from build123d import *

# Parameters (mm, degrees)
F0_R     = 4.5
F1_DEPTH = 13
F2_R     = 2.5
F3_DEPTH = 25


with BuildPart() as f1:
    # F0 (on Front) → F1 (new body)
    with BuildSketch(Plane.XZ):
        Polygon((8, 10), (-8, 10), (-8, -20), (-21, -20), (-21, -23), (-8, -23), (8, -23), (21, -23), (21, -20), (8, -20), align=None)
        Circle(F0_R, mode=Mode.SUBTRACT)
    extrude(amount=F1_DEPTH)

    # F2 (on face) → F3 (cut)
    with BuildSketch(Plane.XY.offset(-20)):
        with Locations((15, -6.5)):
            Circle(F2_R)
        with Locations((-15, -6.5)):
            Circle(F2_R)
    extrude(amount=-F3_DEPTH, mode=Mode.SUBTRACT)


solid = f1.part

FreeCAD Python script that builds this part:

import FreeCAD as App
import Part
import Sketcher

V = App.Vector
Q = App.Units.Quantity

doc = App.newDocument("Part")
body = doc.addObject("PartDesign::Body", "Body")

sketch1 = body.newObject("Sketcher::SketchObject", "Sketch")
sketch1.AttachmentSupport = (doc.getObject("XZ_Plane"), [""])
sketch1.MapMode = "FlatFace"
sketch1.addGeometry(Part.LineSegment(V(8, 10, 0), V(-8, 10, 0)), False)
sketch1.addGeometry(Part.LineSegment(V(-8, 10, 0), V(-8, -20, 0)), False)
sketch1.addGeometry(Part.LineSegment(V(-8, -20, 0), V(-21, -20, 0)), False)
sketch1.addGeometry(Part.LineSegment(V(-21, -20, 0), V(-21, -23, 0)), False)
sketch1.addGeometry(Part.LineSegment(V(-21, -23, 0), V(21, -23, 0)), False)
sketch1.addGeometry(Part.LineSegment(V(21, -23, 0), V(21, -20, 0)), False)
sketch1.addGeometry(Part.LineSegment(V(21, -20, 0), V(8, -20, 0)), False)
sketch1.addGeometry(Part.LineSegment(V(8, -20, 0), V(8, 10, 0)), False)
sketch1.addGeometry(Part.Circle(V(0, 0, 0), V(0, 0, 1), 4.5), False)
sketch1.addConstraint(Sketcher.Constraint("Coincident", 0, 2, 1, 1))
sketch1.addConstraint(Sketcher.Constraint("Coincident", 1, 2, 2, 1))
sketch1.addConstraint(Sketcher.Constraint("Coincident", 2, 2, 3, 1))
sketch1.addConstraint(Sketcher.Constraint("Coincident", 3, 2, 4, 1))
sketch1.addConstraint(Sketcher.Constraint("Coincident", 4, 2, 5, 1))
sketch1.addConstraint(Sketcher.Constraint("Coincident", 5, 2, 6, 1))
sketch1.addConstraint(Sketcher.Constraint("Coincident", 6, 2, 7, 1))
sketch1.addConstraint(Sketcher.Constraint("Coincident", 7, 2, 0, 1))
sketch1.addConstraint(Sketcher.Constraint("Horizontal", 0))
sketch1.addConstraint(Sketcher.Constraint("Vertical", 1))
sketch1.addConstraint(Sketcher.Constraint("Horizontal", 2))
sketch1.addConstraint(Sketcher.Constraint("Vertical", 3))
sketch1.addConstraint(Sketcher.Constraint("Horizontal", 4))
sketch1.addConstraint(Sketcher.Constraint("Vertical", 5))
sketch1.addConstraint(Sketcher.Constraint("Horizontal", 6))
sketch1.addConstraint(Sketcher.Constraint("Vertical", 7))
sketch1.addConstraint(Sketcher.Constraint("Coincident", 8, 3, -1, 1))
sketch1.addConstraint(Sketcher.Constraint("Symmetric", 2, 2, 5, 2, -2))
sketch1.addConstraint(Sketcher.Constraint("Equal", 2, 6))
sketch1.addConstraint(Sketcher.Constraint("Diameter", 8, Q("9 mm")))
sketch1.addConstraint(Sketcher.Constraint("DistanceX", 0, 2, 0, 1, Q("16 mm")))
sketch1.addConstraint(Sketcher.Constraint("DistanceX", 2, 2, 2, 1, Q("13 mm")))
sketch1.addConstraint(Sketcher.Constraint("DistanceY", 1, 2, 1, 1, Q("30 mm")))
sketch1.addConstraint(Sketcher.Constraint("DistanceY", 3, 2, 3, 1, Q("3 mm")))
sketch1.addConstraint(Sketcher.Constraint("DistanceY", -1, 1, 0, 2, Q("10 mm")))
pad1 = body.newObject("PartDesign::Pad", "Pad")
pad1.Profile = sketch1
pad1.Length = 13

sketch2 = body.newObject("Sketcher::SketchObject", "Sketch001")
sketch2.AttachmentSupport = (doc.getObject("XY_Plane"), [""])
sketch2.MapMode = "FlatFace"
sketch2.AttachmentOffset = App.Placement(V(0, 0, -20), App.Rotation())
sketch2.addGeometry(Part.Circle(V(15, -6.5, 0), V(0, 0, 1), 2.5), False)
sketch2.addGeometry(Part.Circle(V(-15, -6.5, 0), V(0, 0, 1), 2.5), False)
sketch2.addConstraint(Sketcher.Constraint("Equal", 0, 1))
sketch2.addConstraint(Sketcher.Constraint("Symmetric", 0, 3, 1, 3, -2))
sketch2.addConstraint(Sketcher.Constraint("Diameter", 0, Q("5 mm")))
sketch2.addConstraint(Sketcher.Constraint("DistanceX", -1, 1, 0, 3, Q("15 mm")))
sketch2.addConstraint(Sketcher.Constraint("DistanceY", 0, 3, -1, 1, Q("6.5 mm")))
pocket1 = body.newObject("PartDesign::Pocket", "Pocket")
pocket1.Profile = sketch2
pocket1.Length = 25

doc.recompute()
